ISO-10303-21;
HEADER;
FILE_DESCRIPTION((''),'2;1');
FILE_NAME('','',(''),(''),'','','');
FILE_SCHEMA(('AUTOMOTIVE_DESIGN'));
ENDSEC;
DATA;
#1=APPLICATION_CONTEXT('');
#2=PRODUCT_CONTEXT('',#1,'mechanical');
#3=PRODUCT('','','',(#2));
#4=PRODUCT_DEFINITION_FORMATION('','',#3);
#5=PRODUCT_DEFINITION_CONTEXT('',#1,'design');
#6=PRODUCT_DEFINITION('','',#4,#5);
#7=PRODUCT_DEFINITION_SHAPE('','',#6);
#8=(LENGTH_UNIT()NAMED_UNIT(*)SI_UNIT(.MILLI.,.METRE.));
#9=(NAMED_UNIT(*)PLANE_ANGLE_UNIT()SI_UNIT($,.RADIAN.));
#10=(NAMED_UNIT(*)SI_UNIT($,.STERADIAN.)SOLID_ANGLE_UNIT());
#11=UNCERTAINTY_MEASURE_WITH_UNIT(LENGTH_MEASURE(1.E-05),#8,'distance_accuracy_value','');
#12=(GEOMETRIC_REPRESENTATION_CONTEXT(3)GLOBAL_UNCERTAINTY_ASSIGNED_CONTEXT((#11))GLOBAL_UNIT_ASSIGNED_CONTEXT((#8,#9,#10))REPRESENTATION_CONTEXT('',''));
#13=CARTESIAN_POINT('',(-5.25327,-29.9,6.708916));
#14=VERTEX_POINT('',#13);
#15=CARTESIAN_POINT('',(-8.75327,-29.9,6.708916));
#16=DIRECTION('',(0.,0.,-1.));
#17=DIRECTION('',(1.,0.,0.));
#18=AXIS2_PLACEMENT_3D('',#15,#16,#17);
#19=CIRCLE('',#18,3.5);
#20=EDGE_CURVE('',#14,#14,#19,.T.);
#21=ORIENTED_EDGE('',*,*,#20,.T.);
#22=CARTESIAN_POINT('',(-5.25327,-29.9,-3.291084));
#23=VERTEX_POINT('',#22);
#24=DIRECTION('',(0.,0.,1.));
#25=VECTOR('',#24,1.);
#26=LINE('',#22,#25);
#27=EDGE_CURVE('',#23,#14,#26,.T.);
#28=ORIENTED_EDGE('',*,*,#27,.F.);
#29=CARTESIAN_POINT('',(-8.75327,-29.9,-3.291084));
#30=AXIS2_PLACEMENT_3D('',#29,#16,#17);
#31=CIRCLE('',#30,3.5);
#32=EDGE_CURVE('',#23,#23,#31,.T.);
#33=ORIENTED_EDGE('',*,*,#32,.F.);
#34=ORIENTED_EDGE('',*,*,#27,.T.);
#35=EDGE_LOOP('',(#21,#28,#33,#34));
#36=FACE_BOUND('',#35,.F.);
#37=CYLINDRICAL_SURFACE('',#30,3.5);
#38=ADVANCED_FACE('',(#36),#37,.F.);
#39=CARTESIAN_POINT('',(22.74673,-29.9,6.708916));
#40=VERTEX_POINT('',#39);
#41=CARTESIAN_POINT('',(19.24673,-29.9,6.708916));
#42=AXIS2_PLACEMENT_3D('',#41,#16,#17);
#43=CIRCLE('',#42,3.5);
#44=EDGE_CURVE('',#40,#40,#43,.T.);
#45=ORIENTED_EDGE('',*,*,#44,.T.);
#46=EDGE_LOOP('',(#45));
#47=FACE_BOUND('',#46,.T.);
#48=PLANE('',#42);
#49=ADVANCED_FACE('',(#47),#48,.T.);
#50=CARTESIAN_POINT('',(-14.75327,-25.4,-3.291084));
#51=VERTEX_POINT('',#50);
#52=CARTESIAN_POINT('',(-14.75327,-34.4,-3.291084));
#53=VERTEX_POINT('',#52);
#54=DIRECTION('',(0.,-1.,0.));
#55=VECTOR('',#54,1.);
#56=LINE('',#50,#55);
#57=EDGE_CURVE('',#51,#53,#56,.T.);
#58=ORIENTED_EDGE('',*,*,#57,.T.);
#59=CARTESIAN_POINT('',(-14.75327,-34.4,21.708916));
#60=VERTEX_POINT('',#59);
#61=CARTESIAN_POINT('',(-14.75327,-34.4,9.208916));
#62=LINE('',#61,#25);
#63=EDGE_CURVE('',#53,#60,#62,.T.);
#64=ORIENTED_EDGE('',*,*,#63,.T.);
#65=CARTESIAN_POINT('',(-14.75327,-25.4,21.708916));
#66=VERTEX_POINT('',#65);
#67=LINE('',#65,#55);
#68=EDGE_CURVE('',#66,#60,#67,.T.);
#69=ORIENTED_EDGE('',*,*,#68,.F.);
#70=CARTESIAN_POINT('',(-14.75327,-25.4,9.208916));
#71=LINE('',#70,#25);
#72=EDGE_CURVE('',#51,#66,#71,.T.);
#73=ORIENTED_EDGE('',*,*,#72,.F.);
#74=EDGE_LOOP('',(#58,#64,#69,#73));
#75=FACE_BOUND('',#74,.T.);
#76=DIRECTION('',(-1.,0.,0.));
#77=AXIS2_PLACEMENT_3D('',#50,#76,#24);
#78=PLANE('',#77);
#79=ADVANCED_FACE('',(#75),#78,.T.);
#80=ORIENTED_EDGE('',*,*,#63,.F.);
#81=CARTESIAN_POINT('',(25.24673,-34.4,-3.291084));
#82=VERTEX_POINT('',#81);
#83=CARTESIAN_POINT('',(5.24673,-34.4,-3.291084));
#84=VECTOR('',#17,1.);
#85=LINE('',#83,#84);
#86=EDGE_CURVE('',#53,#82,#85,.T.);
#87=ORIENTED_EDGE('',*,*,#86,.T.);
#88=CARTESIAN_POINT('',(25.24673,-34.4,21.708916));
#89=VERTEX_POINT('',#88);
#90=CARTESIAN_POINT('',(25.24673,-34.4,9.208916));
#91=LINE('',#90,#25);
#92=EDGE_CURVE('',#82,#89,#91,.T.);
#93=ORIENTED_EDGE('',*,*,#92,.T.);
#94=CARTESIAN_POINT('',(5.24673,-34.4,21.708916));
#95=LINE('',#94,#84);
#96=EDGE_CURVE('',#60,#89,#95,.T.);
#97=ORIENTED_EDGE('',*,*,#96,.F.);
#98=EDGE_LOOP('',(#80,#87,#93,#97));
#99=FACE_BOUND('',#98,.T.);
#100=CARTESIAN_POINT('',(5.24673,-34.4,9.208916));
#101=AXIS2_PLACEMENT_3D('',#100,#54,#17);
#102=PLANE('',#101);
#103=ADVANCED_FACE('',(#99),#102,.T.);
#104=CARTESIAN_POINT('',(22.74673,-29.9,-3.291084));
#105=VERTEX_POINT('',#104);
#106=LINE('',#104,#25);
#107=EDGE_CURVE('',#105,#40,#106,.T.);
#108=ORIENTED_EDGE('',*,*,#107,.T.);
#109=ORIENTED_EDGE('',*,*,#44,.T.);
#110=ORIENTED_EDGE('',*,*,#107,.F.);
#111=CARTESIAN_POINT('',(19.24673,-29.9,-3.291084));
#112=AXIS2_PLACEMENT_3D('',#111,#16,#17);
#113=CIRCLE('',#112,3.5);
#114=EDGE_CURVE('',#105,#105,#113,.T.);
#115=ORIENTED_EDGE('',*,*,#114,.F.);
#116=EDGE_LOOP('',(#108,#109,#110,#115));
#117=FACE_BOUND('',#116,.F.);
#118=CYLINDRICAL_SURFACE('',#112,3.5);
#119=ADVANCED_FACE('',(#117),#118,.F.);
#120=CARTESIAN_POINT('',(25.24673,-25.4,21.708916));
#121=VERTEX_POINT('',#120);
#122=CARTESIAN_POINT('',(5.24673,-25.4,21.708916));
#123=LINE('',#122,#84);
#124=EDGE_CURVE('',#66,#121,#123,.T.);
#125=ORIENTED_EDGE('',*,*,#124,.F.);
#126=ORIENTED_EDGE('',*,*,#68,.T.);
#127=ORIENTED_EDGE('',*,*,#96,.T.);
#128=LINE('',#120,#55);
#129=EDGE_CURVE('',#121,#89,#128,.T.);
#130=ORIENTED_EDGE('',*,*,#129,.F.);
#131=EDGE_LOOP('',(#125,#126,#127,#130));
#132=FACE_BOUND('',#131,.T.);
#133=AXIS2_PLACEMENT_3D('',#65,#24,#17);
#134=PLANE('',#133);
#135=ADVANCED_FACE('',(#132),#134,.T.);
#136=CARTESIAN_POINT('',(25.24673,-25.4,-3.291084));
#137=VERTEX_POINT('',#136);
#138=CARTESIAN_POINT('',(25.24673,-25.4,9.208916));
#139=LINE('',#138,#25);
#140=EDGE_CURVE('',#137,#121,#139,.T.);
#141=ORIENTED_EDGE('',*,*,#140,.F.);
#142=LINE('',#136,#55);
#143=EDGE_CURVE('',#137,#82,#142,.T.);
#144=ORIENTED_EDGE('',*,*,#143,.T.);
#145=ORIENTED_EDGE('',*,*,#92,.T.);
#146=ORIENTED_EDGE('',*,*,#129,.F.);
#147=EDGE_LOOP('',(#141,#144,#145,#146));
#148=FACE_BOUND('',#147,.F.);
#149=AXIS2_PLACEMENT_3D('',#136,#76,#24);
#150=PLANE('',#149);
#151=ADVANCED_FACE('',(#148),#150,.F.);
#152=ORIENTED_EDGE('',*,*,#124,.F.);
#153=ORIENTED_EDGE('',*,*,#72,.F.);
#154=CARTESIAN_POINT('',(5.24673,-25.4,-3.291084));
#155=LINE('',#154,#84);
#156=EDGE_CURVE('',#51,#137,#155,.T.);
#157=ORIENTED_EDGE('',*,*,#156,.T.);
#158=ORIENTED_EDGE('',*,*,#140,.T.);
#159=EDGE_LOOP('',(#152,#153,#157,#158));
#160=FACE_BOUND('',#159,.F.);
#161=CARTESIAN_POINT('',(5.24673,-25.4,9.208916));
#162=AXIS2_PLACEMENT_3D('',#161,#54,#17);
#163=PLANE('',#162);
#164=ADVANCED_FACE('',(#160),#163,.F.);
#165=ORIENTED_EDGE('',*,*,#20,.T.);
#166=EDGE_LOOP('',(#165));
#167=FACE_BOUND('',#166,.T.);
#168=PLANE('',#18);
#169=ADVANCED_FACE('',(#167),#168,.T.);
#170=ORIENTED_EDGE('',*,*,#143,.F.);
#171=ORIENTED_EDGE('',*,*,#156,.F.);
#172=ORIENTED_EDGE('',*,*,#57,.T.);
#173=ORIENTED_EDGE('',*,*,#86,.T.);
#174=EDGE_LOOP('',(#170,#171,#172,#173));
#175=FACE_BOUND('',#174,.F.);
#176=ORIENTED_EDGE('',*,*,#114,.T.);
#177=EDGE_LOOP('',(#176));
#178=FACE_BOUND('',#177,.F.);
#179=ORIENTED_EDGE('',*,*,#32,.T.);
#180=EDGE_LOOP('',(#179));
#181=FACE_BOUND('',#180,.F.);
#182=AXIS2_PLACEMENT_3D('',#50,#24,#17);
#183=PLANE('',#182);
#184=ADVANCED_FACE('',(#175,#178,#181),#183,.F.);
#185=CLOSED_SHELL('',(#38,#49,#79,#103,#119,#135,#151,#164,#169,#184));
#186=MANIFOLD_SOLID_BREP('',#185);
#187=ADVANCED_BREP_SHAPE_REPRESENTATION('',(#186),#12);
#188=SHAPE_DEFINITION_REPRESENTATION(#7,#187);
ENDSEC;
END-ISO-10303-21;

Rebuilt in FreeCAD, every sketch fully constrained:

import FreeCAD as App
import Part
import Sketcher
from FreeCAD import Vector


def add_polygon(sketch, points):
    """Adds a closed chain of lines whose ends are joined by coincident constraints."""
    first, n = sketch.GeometryCount, len(points)
    for a, b in zip(points, points[1:] + points[:1]):
        sketch.addGeometry(Part.LineSegment(App.Vector(*a, 0), App.Vector(*b, 0)), False)
    for i in range(n):
        sketch.addConstraint(Sketcher.Constraint("Coincident", first + i, 2, first + (i + 1) % n, 1))

doc = App.newDocument("Part")
body = doc.addObject("PartDesign::Body", "Body")

# Sketch on XZ plane
sketch1 = body.newObject("Sketcher::SketchObject", "Sketch")
sketch1.AttachmentSupport = (doc.getObject("XZ_Plane"), [""])
sketch1.MapMode = "FlatFace"
sketch1.AttachmentOffset = App.Placement(Vector(0, 0, 25.4), App.Rotation())
add_polygon(sketch1, [(-14.75327, 21.708916), (-14.75327, -3.291084), (25.24673, -3.291084), (25.24673, 21.708916)])  # lines 0-3
sketch1.addConstraint(Sketcher.Constraint("Vertical", 0))
sketch1.addConstraint(Sketcher.Constraint("Horizontal", 1))
sketch1.addConstraint(Sketcher.Constraint("Vertical", 2))
sketch1.addConstraint(Sketcher.Constraint("Horizontal", 3))
sketch1.addConstraint(Sketcher.Constraint("DistanceX", 1, 1, 1, 2, 40.0))
sketch1.addConstraint(Sketcher.Constraint("DistanceY", 0, 2, 0, 1, 25.0))
sketch1.addConstraint(Sketcher.Constraint("DistanceX", 0, 2, -1, 1, 14.75327))
sketch1.addConstraint(Sketcher.Constraint("DistanceY", 0, 2, -1, 1, 3.291084))
pad1 = body.newObject("PartDesign::Pad", "Pad")
pad1.Profile = sketch1
pad1.Length = 9

# Sketch on XY plane
sketch2 = body.newObject("Sketcher::SketchObject", "Sketch001")
sketch2.AttachmentSupport = (doc.getObject("XY_Plane"), [""])
sketch2.MapMode = "FlatFace"
sketch2.AttachmentOffset = App.Placement(Vector(0, 0, -3.291084), App.Rotation())
sketch2.addGeometry(Part.Circle(Vector(19.24673, -29.9, 0), Vector(0, 0, 1), 3.5), False)
sketch2.addGeometry(Part.Circle(Vector(-8.75327, -29.9, 0), Vector(0, 0, 1), 3.5), False)
sketch2.addConstraint(Sketcher.Constraint("Equal", 0, 1))
sketch2.addConstraint(Sketcher.Constraint("Horizontal", 0, 3, 1, 3))
sketch2.addConstraint(Sketcher.Constraint("Diameter", 0, 7.0))
sketch2.addConstraint(Sketcher.Constraint("DistanceX", 1, 3, 0, 3, 28.0))
sketch2.addConstraint(Sketcher.Constraint("DistanceY", 0, 3, -1, 1, 29.9))
sketch2.addConstraint(Sketcher.Constraint("DistanceX", -1, 1, 0, 3, 19.24673))
pocket1 = body.newObject("PartDesign::Pocket", "Pocket")
pocket1.Profile = sketch2
pocket1.Length = 10
pocket1.Reversed = True

doc.recompute()
